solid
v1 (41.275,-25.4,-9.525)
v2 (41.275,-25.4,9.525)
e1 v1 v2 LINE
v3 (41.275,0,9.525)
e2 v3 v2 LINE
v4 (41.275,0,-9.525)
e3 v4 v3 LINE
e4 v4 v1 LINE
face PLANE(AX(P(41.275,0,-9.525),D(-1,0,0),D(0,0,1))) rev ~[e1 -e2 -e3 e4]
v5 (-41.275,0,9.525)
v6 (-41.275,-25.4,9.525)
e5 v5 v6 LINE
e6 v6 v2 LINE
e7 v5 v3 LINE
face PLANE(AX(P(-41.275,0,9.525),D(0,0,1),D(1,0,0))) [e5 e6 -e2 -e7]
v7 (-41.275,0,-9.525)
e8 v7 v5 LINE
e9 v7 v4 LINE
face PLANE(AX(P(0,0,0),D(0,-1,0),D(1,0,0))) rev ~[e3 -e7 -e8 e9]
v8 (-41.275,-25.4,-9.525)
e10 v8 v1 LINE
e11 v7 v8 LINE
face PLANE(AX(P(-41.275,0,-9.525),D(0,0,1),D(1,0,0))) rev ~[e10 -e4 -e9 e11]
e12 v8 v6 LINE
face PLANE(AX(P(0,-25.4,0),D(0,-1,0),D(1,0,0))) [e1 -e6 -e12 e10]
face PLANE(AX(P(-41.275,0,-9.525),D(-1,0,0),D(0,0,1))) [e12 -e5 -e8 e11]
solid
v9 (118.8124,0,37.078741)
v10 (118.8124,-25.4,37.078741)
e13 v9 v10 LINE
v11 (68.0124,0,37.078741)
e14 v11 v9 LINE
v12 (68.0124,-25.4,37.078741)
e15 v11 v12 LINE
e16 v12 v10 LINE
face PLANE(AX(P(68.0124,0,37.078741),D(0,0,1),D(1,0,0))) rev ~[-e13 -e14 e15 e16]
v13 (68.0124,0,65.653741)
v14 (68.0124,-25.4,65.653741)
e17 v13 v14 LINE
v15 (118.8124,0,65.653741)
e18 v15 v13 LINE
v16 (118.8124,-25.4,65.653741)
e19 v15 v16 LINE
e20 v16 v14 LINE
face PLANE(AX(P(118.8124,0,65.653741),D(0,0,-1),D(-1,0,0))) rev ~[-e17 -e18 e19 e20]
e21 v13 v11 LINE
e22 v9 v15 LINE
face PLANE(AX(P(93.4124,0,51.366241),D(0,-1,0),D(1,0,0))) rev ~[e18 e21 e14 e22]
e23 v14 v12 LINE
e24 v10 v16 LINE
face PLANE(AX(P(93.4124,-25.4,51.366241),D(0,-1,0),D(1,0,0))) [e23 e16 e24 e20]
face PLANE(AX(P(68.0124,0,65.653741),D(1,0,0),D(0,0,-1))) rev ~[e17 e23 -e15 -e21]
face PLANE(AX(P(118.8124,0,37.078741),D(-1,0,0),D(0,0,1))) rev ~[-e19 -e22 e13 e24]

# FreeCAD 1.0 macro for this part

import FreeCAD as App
import Part
import Sketcher
from FreeCAD import Vector
Q = App.Units.Quantity


def add_polygon(sketch, points):
    """Adds a closed chain of lines whose ends are joined by coincident constraints."""
    first, n = sketch.GeometryCount, len(points)
    for a, b in zip(points, points[1:] + points[:1]):
        sketch.addGeometry(Part.LineSegment(App.Vector(*a, 0), App.Vector(*b, 0)), False)
    for i in range(n):
        sketch.addConstraint(Sketcher.Constraint("Coincident", first + i, 2, first + (i + 1) % n, 1))

doc = App.newDocument("Part")
body = doc.addObject("PartDesign::Body", "Body")
body.AllowCompound = True

# Sketch on XZ plane
sketch1 = body.newObject("Sketcher::SketchObject", "Sketch")
sketch1.AttachmentSupport = (doc.getObject("XZ_Plane"), [""])
sketch1.MapMode = "FlatFace"
add_polygon(sketch1, [(68, 66), (68, 37), (119, 37), (119, 66)])  # lines 0-3
add_polygon(sketch1, [(-41, 10), (-41, -10), (41, -10), (41, 10)])  # lines 4-7
sketch1.addConstraint([
    Sketcher.Constraint("Vertical", 0),
    Sketcher.Constraint("Horizontal", 1),
    Sketcher.Constraint("Vertical", 2),
    Sketcher.Constraint("Horizontal", 3),
    Sketcher.Constraint("Vertical", 4),
    Sketcher.Constraint("Horizontal", 5),
    Sketcher.Constraint("Vertical", 6),
    Sketcher.Constraint("Horizontal", 7),
    Sketcher.Constraint("Symmetric", 4, 2, 6, 2, -1, 1),
    Sketcher.Constraint("DistanceX", 1, 1, 1, 2, Q("2 in")),
    Sketcher.Constraint("DistanceX", 5, 1, 5, 2, Q("3.25 in")),
    Sketcher.Constraint("DistanceY", 4, 2, 4, 1, Q("0.75 in")),
    Sketcher.Constraint("DistanceY", 0, 2, 0, 1, Q("1.125 in")),
    Sketcher.Constraint("DistanceX", -1, 1, 0, 2, Q("68.0124 mm")),
    Sketcher.Constraint("DistanceY", -1, 1, 0, 2, Q("37.078741 mm")),
])
pad1 = body.newObject("PartDesign::Pad", "Pad")
pad1.Profile = sketch1
pad1.Length = Q("1 in")

doc.recompute()
